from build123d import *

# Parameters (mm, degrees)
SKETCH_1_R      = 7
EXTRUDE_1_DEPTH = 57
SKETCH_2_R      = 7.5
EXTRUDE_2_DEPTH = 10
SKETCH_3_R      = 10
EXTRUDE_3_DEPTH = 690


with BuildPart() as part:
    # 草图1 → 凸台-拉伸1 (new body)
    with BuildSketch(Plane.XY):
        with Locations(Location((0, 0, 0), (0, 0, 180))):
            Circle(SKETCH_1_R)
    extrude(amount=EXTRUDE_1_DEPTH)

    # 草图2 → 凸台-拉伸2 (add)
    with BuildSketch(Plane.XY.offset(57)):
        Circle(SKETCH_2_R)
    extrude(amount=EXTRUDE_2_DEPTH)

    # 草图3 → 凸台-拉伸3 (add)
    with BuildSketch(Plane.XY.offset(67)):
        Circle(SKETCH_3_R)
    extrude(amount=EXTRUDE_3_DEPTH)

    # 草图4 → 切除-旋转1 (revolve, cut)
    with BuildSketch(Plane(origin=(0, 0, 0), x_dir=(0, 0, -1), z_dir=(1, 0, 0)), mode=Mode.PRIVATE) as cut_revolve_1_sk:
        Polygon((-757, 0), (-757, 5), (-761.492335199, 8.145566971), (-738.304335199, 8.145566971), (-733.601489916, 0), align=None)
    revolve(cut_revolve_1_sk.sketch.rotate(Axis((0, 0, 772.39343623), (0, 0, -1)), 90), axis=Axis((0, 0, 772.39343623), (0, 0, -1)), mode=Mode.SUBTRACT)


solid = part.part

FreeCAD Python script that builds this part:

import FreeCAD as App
import Part
import Sketcher
Q = App.Units.Quantity


def add_polygon(sketch, points):
    """Adds a closed chain of lines whose ends are joined by coincident constraints."""
    first, n = sketch.GeometryCount, len(points)
    for a, b in zip(points, points[1:] + points[:1]):
        sketch.addGeometry(Part.LineSegment(App.Vector(*a, 0), App.Vector(*b, 0)), False)
    for i in range(n):
        sketch.addConstraint(Sketcher.Constraint("Coincident", first + i, 2, first + (i + 1) % n, 1))

doc = App.newDocument("Part")
body = doc.addObject("PartDesign::Body", "Body")

# Sketch on XY plane
sketch1 = body.newObject("Sketcher::SketchObject", "Sketch")
sketch1.AttachmentSupport = (doc.getObject("XY_Plane"), [""])
sketch1.MapMode = "FlatFace"
sketch1.addGeometry(Part.Circle(App.Vector(0, 0, 0), App.Vector(0, 0, 1), 7), False)
sketch1.addConstraint(Sketcher.Constraint("Coincident", 0, 3, -1, 1))
sketch1.addConstraint(Sketcher.Constraint("Diameter", 0, Q("14 mm")))
pad1 = body.newObject("PartDesign::Pad", "Pad")
pad1.Profile = sketch1
pad1.Length = 57

# Sketch on XY plane
sketch2 = body.newObject("Sketcher::SketchObject", "Sketch001")
sketch2.AttachmentSupport = (doc.getObject("XY_Plane"), [""])
sketch2.MapMode = "FlatFace"
sketch2.AttachmentOffset = App.Placement(App.Vector(0, 0, 57), App.Rotation())
sketch2.addGeometry(Part.Circle(App.Vector(0, 0, 0), App.Vector(0, 0, 1), 7.5), False)
sketch2.addConstraint(Sketcher.Constraint("Coincident", 0, 3, -1, 1))
sketch2.addConstraint(Sketcher.Constraint("Diameter", 0, Q("15 mm")))
pad2 = body.newObject("PartDesign::Pad", "Pad001")
pad2.Profile = sketch2
pad2.Length = 10

# Sketch on XY plane
sketch3 = body.newObject("Sketcher::SketchObject", "Sketch002")
sketch3.AttachmentSupport = (doc.getObject("XY_Plane"), [""])
sketch3.MapMode = "FlatFace"
sketch3.AttachmentOffset = App.Placement(App.Vector(0, 0, 67), App.Rotation())
sketch3.addGeometry(Part.Circle(App.Vector(0, 0, 0), App.Vector(0, 0, 1), 10), False)
sketch3.addConstraint(Sketcher.Constraint("Coincident", 0, 3, -1, 1))
sketch3.addConstraint(Sketcher.Constraint("Diameter", 0, Q("20 mm")))
pad3 = body.newObject("PartDesign::Pad", "Pad002")
pad3.Profile = sketch3
pad3.Length = 690

# Sketch on YZ plane
sketch4 = body.newObject("Sketcher::SketchObject", "Sketch003")
sketch4.AttachmentSupport = (doc.getObject("YZ_Plane"), [""])
sketch4.MapMode = "FlatFace"
add_polygon(sketch4, [(5, 757), (0, 757), (0, 733.60149), (8.145567, 738.304335), (8.145567, 761.492335)])  # lines 0-4
sketch4.addConstraint(Sketcher.Constraint("Horizontal", 0))
sketch4.addConstraint(Sketcher.Constraint("Vertical", 1))
sketch4.addConstraint(Sketcher.Constraint("Vertical", 3))
sketch4.addConstraint(Sketcher.Constraint("PointOnObject", 0, 2, -2))
sketch4.addConstraint(Sketcher.Constraint("DistanceX", 0, 2, 0, 1, Q("5 mm")))
sketch4.addConstraint(Sketcher.Constraint("Angle", 2, Q("30 deg")))
sketch4.addConstraint(Sketcher.Constraint("Angle", 4, Q("-125 deg")))
sketch4.addConstraint(Sketcher.Constraint("DistanceY", -1, 1, 0, 2, Q("757 mm")))
sketch4.addConstraint(Sketcher.Constraint("DistanceY", 3, 1, 3, 2, Q("23.188 mm")))
sketch4.addConstraint(Sketcher.Constraint("DistanceY", 1, 2, 1, 1, Q("23.39851 mm")))
groove = body.newObject("PartDesign::Groove", "Groove")
groove.Profile = sketch4
groove.ReferenceAxis = (sketch4, ["V_Axis"])
groove.Angle = 360

doc.recompute()
